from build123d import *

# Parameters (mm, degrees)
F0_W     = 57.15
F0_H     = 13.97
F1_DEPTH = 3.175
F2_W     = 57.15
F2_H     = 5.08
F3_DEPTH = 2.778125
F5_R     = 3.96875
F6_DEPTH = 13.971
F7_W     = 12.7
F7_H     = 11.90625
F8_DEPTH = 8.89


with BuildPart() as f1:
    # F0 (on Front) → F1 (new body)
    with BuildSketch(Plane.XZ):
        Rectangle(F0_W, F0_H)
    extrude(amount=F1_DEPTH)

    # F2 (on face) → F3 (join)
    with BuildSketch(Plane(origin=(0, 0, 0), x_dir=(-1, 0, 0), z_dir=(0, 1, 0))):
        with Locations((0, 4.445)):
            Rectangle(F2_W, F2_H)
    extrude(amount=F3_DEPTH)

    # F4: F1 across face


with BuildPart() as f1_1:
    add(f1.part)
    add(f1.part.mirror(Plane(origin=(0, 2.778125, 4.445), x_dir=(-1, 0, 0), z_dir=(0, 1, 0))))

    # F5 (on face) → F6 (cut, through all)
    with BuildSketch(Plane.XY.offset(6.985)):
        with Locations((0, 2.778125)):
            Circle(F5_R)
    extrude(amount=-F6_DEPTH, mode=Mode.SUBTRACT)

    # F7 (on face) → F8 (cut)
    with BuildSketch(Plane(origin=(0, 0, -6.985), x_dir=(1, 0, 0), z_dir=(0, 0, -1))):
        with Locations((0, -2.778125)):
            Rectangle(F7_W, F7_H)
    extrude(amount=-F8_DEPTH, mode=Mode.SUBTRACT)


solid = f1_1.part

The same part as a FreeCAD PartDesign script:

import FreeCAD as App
import Part
import Sketcher
Q = App.Units.Quantity

doc = App.newDocument("Part")
body = doc.addObject("PartDesign::Body", "Body")

sketch1 = body.newObject("Sketcher::SketchObject", "Sketch")
sketch1.AttachmentSupport = (doc.getObject("XZ_Plane"), [""])
sketch1.MapMode = "FlatFace"
sketch1.addGeometry(Part.LineSegment(App.Vector(-28.575, 6.985, 0), App.Vector(-28.575, -6.985, 0)), False)
sketch1.addGeometry(Part.LineSegment(App.Vector(-28.575, -6.985, 0), App.Vector(28.575, -6.985, 0)), False)
sketch1.addGeometry(Part.LineSegment(App.Vector(28.575, -6.985, 0), App.Vector(28.575, 6.985, 0)), False)
sketch1.addGeometry(Part.LineSegment(App.Vector(28.575, 6.985, 0), App.Vector(-28.575, 6.985, 0)), False)
sketch1.addConstraint(Sketcher.Constraint("Coincident", 0, 2, 1, 1))
sketch1.addConstraint(Sketcher.Constraint("Coincident", 1, 2, 2, 1))
sketch1.addConstraint(Sketcher.Constraint("Coincident", 2, 2, 3, 1))
sketch1.addConstraint(Sketcher.Constraint("Coincident", 3, 2, 0, 1))
sketch1.addConstraint(Sketcher.Constraint("Vertical", 0))
sketch1.addConstraint(Sketcher.Constraint("Horizontal", 1))
sketch1.addConstraint(Sketcher.Constraint("Vertical", 2))
sketch1.addConstraint(Sketcher.Constraint("Horizontal", 3))
sketch1.addConstraint(Sketcher.Constraint("Symmetric", 0, 2, 2, 2, -1, 1))
sketch1.addConstraint(Sketcher.Constraint("DistanceX", 1, 1, 1, 2, Q("2.25 in")))
sketch1.addConstraint(Sketcher.Constraint("DistanceY", 0, 2, 0, 1, Q("0.55 in")))
pad1 = body.newObject("PartDesign::Pad", "Pad")
pad1.Profile = sketch1
pad1.Length = Q("0.125 in")

sketch2 = body.newObject("Sketcher::SketchObject", "Sketch001")
sketch2.AttachmentSupport = (doc.getObject("XZ_Plane"), [""])
sketch2.MapMode = "FlatFace"
sketch2.addGeometry(Part.LineSegment(App.Vector(28.575, 6.985, 0), App.Vector(28.575, 1.905, 0)), False)
sketch2.addGeometry(Part.LineSegment(App.Vector(28.575, 1.905, 0), App.Vector(-28.575, 1.905, 0)), False)
sketch2.addGeometry(Part.LineSegment(App.Vector(-28.575, 1.905, 0), App.Vector(-28.575, 6.985, 0)), False)
sketch2.addGeometry(Part.LineSegment(App.Vector(-28.575, 6.985, 0), App.Vector(28.575, 6.985, 0)), False)
sketch2.addConstraint(Sketcher.Constraint("Coincident", 0, 2, 1, 1))
sketch2.addConstraint(Sketcher.Constraint("Coincident", 1, 2, 2, 1))
sketch2.addConstraint(Sketcher.Constraint("Coincident", 2, 2, 3, 1))
sketch2.addConstraint(Sketcher.Constraint("Coincident", 3, 2, 0, 1))
sketch2.addConstraint(Sketcher.Constraint("Vertical", 0))
sketch2.addConstraint(Sketcher.Constraint("Horizontal", 1))
sketch2.addConstraint(Sketcher.Constraint("Vertical", 2))
sketch2.addConstraint(Sketcher.Constraint("Horizontal", 3))
sketch2.addConstraint(Sketcher.Constraint("DistanceY", 0, 2, 0, 1, Q("0.2 in")))
sketch2.addConstraint(Sketcher.Constraint("DistanceX", 1, 2, 1, 1, Q("2.25 in")))
sketch2.addConstraint(Sketcher.Constraint("DistanceX", -1, 1, 0, 2, Q("1.125 in")))
sketch2.addConstraint(Sketcher.Constraint("DistanceY", -1, 1, 0, 2, Q("0.075 in")))
pad2 = body.newObject("PartDesign::Pad", "Pad001")
pad2.Profile = sketch2
pad2.Length = Q("0.109375 in")
pad2.Reversed = True
body2 = doc.addObject("PartDesign::Body", "Body001")
doc.recompute()

body2.BaseFeature = body
doc.recompute()

mirroring = doc.addObject("Part::Mirroring", "Mirroring")
mirroring.Source = body
mirroring.Base = App.Vector(0, 2.778125, 4.445)
mirroring.Normal = App.Vector(0, 1, 0)
body3 = doc.addObject("PartDesign::Body", "Body002")
body3.BaseFeature = mirroring
boolean = body2.newObject("PartDesign::Boolean", "Boolean")
boolean.Type = "Fuse"
boolean.addObjects([body3])
doc.recompute()

sketch3 = body2.newObject("Sketcher::SketchObject", "Sketch002")
sketch3.AttachmentSupport = (doc.getObject("XY_Plane001"), [""])
sketch3.MapMode = "FlatFace"
sketch3.AttachmentOffset = App.Placement(App.Vector(0, 0, 0.275 * 25.4), App.Rotation())
sketch3.addGeometry(Part.Circle(App.Vector(0, 2.778125, 0), App.Vector(0, 0, 1), 3.96875), False)
sketch3.addConstraint(Sketcher.Constraint("PointOnObject", 0, 3, -2))
sketch3.addConstraint(Sketcher.Constraint("Diameter", 0, Q("0.3125 in")))
sketch3.addConstraint(Sketcher.Constraint("DistanceY", -1, 1, 0, 3, Q("0.109375 in")))
pocket1 = body2.newObject("PartDesign::Pocket", "Pocket")
pocket1.Profile = sketch3
pocket1.Type = "ThroughAll"

sketch4 = body2.newObject("Sketcher::SketchObject", "Sketch003")
sketch4.AttachmentSupport = (doc.getObject("XY_Plane001"), [""])
sketch4.MapMode = "FlatFace"
sketch4.AttachmentOffset = App.Placement(App.Vector(0, 0, -0.275 * 25.4), App.Rotation())
sketch4.addGeometry(Part.LineSegment(App.Vector(-6.35, -3.175, 0), App.Vector(-6.35, 8.73125, 0)), False)
sketch4.addGeometry(Part.LineSegment(App.Vector(-6.35, 8.73125, 0), App.Vector(6.35, 8.73125, 0)), False)
sketch4.addGeometry(Part.LineSegment(App.Vector(6.35, 8.73125, 0), App.Vector(6.35, -3.175, 0)), False)
sketch4.addGeometry(Part.LineSegment(App.Vector(6.35, -3.175, 0), App.Vector(-6.35, -3.175, 0)), False)
sketch4.addConstraint(Sketcher.Constraint("Coincident", 0, 2, 1, 1))
sketch4.addConstraint(Sketcher.Constraint("Coincident", 1, 2, 2, 1))
sketch4.addConstraint(Sketcher.Constraint("Coincident", 2, 2, 3, 1))
sketch4.addConstraint(Sketcher.Constraint("Coincident", 3, 2, 0, 1))
sketch4.addConstraint(Sketcher.Constraint("Vertical", 0))
sketch4.addConstraint(Sketcher.Constraint("Horizontal", 1))
sketch4.addConstraint(Sketcher.Constraint("Vertical", 2))
sketch4.addConstraint(Sketcher.Constraint("Horizontal", 3))
sketch4.addConstraint(Sketcher.Constraint("DistanceX", 1, 1, 1, 2, Q("0.5 in")))
sketch4.addConstraint(Sketcher.Constraint("DistanceY", 0, 1, 0, 2, Q("0.46875 in")))
sketch4.addConstraint(Sketcher.Constraint("DistanceX", 0, 2, -1, 1, Q("0.25 in")))
sketch4.addConstraint(Sketcher.Constraint("DistanceY", -1, 1, 0, 2, Q("0.34375 in")))
pocket2 = body2.newObject("PartDesign::Pocket", "Pocket001")
pocket2.Profile = sketch4
pocket2.Length = Q("0.35 in")
pocket2.Reversed = True
mirroring.Visibility = False

doc.recompute()
